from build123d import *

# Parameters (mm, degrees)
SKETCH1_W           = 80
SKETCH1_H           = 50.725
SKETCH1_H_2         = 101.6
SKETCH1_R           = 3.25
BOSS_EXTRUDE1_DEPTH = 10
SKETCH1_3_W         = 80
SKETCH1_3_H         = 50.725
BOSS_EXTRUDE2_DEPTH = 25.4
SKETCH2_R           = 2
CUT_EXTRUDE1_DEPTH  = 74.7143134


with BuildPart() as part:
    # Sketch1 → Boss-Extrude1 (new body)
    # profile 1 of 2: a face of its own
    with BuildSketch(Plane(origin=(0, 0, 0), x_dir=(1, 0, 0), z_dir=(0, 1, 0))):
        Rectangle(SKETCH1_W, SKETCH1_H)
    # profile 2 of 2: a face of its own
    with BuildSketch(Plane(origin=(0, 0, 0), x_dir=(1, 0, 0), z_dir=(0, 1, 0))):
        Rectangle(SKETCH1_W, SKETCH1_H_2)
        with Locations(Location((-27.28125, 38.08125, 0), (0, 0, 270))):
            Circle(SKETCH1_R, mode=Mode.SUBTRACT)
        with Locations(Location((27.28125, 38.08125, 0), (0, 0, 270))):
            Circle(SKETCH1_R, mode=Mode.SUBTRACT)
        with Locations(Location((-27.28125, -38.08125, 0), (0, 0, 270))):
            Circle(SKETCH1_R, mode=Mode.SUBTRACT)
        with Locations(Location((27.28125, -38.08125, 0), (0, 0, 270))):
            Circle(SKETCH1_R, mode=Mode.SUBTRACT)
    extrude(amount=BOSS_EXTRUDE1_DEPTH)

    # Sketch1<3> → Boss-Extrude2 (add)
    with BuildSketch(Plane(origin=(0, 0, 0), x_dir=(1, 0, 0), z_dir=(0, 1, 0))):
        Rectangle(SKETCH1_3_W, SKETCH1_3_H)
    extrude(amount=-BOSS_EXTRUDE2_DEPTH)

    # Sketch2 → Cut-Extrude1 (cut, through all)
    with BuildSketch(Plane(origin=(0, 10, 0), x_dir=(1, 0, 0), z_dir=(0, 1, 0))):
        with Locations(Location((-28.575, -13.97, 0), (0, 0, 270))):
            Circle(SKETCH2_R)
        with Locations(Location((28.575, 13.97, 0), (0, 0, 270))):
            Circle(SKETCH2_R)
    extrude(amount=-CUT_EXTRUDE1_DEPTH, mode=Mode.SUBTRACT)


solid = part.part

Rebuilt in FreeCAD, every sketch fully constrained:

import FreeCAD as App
import Part
import Sketcher

V = App.Vector
Q = App.Units.Quantity


def add_polygon(sketch, points):
    """Adds a closed chain of lines whose ends are joined by coincident constraints."""
    first, n = sketch.GeometryCount, len(points)
    for a, b in zip(points, points[1:] + points[:1]):
        sketch.addGeometry(Part.LineSegment(App.Vector(*a, 0), App.Vector(*b, 0)), False)
    for i in range(n):
        sketch.addConstraint(Sketcher.Constraint("Coincident", first + i, 2, first + (i + 1) % n, 1))

doc = App.newDocument("Part")
body = doc.addObject("PartDesign::Body", "Body")

# Sketch on XZ plane
sketch1 = body.newObject("Sketcher::SketchObject", "Sketch")
sketch1.AttachmentSupport = (doc.getObject("XZ_Plane"), [""])
sketch1.MapMode = "FlatFace"
add_polygon(sketch1, [(-40, 50.8), (40, 50.8), (40, -50.8), (-40, -50.8)])  # lines 0-3
sketch1.addGeometry(Part.Circle(V(27.3, 38.1, 0), V(0, 0, 1), 3.2), False)  # 4
sketch1.addGeometry(Part.Circle(V(-27.3, 38.1, 0), V(0, 0, 1), 3.2), False)  # 5
sketch1.addGeometry(Part.Circle(V(27.3, -38.1, 0), V(0, 0, 1), 3.2), False)  # 6
sketch1.addGeometry(Part.Circle(V(-27.3, -38.1, 0), V(0, 0, 1), 3.2), False)  # 7
sketch1.addConstraint([
    Sketcher.Constraint("Horizontal", 0),
    Sketcher.Constraint("Vertical", 1),
    Sketcher.Constraint("Horizontal", 2),
    Sketcher.Constraint("Vertical", 3),
    Sketcher.Constraint("Equal", 4, 5),
    Sketcher.Constraint("Equal", 5, 6),
    Sketcher.Constraint("Equal", 6, 7),
    Sketcher.Constraint("Symmetric", 5, 3, 6, 3, -1, 1),
    Sketcher.Constraint("Symmetric", 4, 3, 7, 3, -1, 1),
    Sketcher.Constraint("Symmetric", 0, 2, 2, 2, -1, 1),
    Sketcher.Constraint("Symmetric", 4, 3, 5, 3, -2),
    Sketcher.Constraint("Diameter", 4, Q("6.5 mm")),
    Sketcher.Constraint("DistanceX", 0, 1, 0, 2, Q("80 mm")),
    Sketcher.Constraint("DistanceY", 1, 2, 1, 1, Q("101.6 mm")),
    Sketcher.Constraint("DistanceX", 5, 3, 4, 3, Q("54.5625 mm")),
    Sketcher.Constraint("DistanceY", 6, 3, 4, 3, Q("76.1625 mm")),
])
pad1 = body.newObject("PartDesign::Pad", "Pad")
pad1.Profile = sketch1
pad1.Length = 10
pad1.Reversed = True

# Sketch on XZ plane
sketch2 = body.newObject("Sketcher::SketchObject", "Sketch001")
sketch2.AttachmentSupport = (doc.getObject("XZ_Plane"), [""])
sketch2.MapMode = "FlatFace"
add_polygon(sketch2, [(-40, -25), (-40, 25), (40, 25), (40, -25)])  # lines 0-3
sketch2.addConstraint([
    Sketcher.Constraint("Vertical", 0),
    Sketcher.Constraint("Horizontal", 1),
    Sketcher.Constraint("Vertical", 2),
    Sketcher.Constraint("Horizontal", 3),
    Sketcher.Constraint("Symmetric", 0, 2, 2, 2, -1, 1),
    Sketcher.Constraint("DistanceX", 1, 1, 1, 2, Q("80 mm")),
    Sketcher.Constraint("DistanceY", 0, 1, 0, 2, Q("50.725 mm")),
])
pad2 = body.newObject("PartDesign::Pad", "Pad001")
pad2.Profile = sketch2
pad2.Length = 25.4

# Sketch on XZ plane
sketch3 = body.newObject("Sketcher::SketchObject", "Sketch002")
sketch3.AttachmentSupport = (doc.getObject("XZ_Plane"), [""])
sketch3.MapMode = "FlatFace"
sketch3.AttachmentOffset = App.Placement(V(0, 0, -10), App.Rotation())
sketch3.addGeometry([
    Part.Circle(V(-28.6, 14, 0), V(0, 0, 1), 2),
    Part.Circle(V(28.6, -14, 0), V(0, 0, 1), 2),
], False)
sketch3.addConstraint([
    Sketcher.Constraint("Equal", 0, 1),
    Sketcher.Constraint("Symmetric", 0, 3, 1, 3, -1, 1),
    Sketcher.Constraint("Diameter", 0, Q("4 mm")),
    Sketcher.Constraint("DistanceY", -1, 1, 0, 3, Q("13.97 mm")),
    Sketcher.Constraint("DistanceX", 0, 3, 1, 3, Q("57.15 mm")),
])
pocket1 = body.newObject("PartDesign::Pocket", "Pocket")
pocket1.Profile = sketch3
pocket1.Type = "ThroughAll"
pocket1.Reversed = True

doc.recompute()
